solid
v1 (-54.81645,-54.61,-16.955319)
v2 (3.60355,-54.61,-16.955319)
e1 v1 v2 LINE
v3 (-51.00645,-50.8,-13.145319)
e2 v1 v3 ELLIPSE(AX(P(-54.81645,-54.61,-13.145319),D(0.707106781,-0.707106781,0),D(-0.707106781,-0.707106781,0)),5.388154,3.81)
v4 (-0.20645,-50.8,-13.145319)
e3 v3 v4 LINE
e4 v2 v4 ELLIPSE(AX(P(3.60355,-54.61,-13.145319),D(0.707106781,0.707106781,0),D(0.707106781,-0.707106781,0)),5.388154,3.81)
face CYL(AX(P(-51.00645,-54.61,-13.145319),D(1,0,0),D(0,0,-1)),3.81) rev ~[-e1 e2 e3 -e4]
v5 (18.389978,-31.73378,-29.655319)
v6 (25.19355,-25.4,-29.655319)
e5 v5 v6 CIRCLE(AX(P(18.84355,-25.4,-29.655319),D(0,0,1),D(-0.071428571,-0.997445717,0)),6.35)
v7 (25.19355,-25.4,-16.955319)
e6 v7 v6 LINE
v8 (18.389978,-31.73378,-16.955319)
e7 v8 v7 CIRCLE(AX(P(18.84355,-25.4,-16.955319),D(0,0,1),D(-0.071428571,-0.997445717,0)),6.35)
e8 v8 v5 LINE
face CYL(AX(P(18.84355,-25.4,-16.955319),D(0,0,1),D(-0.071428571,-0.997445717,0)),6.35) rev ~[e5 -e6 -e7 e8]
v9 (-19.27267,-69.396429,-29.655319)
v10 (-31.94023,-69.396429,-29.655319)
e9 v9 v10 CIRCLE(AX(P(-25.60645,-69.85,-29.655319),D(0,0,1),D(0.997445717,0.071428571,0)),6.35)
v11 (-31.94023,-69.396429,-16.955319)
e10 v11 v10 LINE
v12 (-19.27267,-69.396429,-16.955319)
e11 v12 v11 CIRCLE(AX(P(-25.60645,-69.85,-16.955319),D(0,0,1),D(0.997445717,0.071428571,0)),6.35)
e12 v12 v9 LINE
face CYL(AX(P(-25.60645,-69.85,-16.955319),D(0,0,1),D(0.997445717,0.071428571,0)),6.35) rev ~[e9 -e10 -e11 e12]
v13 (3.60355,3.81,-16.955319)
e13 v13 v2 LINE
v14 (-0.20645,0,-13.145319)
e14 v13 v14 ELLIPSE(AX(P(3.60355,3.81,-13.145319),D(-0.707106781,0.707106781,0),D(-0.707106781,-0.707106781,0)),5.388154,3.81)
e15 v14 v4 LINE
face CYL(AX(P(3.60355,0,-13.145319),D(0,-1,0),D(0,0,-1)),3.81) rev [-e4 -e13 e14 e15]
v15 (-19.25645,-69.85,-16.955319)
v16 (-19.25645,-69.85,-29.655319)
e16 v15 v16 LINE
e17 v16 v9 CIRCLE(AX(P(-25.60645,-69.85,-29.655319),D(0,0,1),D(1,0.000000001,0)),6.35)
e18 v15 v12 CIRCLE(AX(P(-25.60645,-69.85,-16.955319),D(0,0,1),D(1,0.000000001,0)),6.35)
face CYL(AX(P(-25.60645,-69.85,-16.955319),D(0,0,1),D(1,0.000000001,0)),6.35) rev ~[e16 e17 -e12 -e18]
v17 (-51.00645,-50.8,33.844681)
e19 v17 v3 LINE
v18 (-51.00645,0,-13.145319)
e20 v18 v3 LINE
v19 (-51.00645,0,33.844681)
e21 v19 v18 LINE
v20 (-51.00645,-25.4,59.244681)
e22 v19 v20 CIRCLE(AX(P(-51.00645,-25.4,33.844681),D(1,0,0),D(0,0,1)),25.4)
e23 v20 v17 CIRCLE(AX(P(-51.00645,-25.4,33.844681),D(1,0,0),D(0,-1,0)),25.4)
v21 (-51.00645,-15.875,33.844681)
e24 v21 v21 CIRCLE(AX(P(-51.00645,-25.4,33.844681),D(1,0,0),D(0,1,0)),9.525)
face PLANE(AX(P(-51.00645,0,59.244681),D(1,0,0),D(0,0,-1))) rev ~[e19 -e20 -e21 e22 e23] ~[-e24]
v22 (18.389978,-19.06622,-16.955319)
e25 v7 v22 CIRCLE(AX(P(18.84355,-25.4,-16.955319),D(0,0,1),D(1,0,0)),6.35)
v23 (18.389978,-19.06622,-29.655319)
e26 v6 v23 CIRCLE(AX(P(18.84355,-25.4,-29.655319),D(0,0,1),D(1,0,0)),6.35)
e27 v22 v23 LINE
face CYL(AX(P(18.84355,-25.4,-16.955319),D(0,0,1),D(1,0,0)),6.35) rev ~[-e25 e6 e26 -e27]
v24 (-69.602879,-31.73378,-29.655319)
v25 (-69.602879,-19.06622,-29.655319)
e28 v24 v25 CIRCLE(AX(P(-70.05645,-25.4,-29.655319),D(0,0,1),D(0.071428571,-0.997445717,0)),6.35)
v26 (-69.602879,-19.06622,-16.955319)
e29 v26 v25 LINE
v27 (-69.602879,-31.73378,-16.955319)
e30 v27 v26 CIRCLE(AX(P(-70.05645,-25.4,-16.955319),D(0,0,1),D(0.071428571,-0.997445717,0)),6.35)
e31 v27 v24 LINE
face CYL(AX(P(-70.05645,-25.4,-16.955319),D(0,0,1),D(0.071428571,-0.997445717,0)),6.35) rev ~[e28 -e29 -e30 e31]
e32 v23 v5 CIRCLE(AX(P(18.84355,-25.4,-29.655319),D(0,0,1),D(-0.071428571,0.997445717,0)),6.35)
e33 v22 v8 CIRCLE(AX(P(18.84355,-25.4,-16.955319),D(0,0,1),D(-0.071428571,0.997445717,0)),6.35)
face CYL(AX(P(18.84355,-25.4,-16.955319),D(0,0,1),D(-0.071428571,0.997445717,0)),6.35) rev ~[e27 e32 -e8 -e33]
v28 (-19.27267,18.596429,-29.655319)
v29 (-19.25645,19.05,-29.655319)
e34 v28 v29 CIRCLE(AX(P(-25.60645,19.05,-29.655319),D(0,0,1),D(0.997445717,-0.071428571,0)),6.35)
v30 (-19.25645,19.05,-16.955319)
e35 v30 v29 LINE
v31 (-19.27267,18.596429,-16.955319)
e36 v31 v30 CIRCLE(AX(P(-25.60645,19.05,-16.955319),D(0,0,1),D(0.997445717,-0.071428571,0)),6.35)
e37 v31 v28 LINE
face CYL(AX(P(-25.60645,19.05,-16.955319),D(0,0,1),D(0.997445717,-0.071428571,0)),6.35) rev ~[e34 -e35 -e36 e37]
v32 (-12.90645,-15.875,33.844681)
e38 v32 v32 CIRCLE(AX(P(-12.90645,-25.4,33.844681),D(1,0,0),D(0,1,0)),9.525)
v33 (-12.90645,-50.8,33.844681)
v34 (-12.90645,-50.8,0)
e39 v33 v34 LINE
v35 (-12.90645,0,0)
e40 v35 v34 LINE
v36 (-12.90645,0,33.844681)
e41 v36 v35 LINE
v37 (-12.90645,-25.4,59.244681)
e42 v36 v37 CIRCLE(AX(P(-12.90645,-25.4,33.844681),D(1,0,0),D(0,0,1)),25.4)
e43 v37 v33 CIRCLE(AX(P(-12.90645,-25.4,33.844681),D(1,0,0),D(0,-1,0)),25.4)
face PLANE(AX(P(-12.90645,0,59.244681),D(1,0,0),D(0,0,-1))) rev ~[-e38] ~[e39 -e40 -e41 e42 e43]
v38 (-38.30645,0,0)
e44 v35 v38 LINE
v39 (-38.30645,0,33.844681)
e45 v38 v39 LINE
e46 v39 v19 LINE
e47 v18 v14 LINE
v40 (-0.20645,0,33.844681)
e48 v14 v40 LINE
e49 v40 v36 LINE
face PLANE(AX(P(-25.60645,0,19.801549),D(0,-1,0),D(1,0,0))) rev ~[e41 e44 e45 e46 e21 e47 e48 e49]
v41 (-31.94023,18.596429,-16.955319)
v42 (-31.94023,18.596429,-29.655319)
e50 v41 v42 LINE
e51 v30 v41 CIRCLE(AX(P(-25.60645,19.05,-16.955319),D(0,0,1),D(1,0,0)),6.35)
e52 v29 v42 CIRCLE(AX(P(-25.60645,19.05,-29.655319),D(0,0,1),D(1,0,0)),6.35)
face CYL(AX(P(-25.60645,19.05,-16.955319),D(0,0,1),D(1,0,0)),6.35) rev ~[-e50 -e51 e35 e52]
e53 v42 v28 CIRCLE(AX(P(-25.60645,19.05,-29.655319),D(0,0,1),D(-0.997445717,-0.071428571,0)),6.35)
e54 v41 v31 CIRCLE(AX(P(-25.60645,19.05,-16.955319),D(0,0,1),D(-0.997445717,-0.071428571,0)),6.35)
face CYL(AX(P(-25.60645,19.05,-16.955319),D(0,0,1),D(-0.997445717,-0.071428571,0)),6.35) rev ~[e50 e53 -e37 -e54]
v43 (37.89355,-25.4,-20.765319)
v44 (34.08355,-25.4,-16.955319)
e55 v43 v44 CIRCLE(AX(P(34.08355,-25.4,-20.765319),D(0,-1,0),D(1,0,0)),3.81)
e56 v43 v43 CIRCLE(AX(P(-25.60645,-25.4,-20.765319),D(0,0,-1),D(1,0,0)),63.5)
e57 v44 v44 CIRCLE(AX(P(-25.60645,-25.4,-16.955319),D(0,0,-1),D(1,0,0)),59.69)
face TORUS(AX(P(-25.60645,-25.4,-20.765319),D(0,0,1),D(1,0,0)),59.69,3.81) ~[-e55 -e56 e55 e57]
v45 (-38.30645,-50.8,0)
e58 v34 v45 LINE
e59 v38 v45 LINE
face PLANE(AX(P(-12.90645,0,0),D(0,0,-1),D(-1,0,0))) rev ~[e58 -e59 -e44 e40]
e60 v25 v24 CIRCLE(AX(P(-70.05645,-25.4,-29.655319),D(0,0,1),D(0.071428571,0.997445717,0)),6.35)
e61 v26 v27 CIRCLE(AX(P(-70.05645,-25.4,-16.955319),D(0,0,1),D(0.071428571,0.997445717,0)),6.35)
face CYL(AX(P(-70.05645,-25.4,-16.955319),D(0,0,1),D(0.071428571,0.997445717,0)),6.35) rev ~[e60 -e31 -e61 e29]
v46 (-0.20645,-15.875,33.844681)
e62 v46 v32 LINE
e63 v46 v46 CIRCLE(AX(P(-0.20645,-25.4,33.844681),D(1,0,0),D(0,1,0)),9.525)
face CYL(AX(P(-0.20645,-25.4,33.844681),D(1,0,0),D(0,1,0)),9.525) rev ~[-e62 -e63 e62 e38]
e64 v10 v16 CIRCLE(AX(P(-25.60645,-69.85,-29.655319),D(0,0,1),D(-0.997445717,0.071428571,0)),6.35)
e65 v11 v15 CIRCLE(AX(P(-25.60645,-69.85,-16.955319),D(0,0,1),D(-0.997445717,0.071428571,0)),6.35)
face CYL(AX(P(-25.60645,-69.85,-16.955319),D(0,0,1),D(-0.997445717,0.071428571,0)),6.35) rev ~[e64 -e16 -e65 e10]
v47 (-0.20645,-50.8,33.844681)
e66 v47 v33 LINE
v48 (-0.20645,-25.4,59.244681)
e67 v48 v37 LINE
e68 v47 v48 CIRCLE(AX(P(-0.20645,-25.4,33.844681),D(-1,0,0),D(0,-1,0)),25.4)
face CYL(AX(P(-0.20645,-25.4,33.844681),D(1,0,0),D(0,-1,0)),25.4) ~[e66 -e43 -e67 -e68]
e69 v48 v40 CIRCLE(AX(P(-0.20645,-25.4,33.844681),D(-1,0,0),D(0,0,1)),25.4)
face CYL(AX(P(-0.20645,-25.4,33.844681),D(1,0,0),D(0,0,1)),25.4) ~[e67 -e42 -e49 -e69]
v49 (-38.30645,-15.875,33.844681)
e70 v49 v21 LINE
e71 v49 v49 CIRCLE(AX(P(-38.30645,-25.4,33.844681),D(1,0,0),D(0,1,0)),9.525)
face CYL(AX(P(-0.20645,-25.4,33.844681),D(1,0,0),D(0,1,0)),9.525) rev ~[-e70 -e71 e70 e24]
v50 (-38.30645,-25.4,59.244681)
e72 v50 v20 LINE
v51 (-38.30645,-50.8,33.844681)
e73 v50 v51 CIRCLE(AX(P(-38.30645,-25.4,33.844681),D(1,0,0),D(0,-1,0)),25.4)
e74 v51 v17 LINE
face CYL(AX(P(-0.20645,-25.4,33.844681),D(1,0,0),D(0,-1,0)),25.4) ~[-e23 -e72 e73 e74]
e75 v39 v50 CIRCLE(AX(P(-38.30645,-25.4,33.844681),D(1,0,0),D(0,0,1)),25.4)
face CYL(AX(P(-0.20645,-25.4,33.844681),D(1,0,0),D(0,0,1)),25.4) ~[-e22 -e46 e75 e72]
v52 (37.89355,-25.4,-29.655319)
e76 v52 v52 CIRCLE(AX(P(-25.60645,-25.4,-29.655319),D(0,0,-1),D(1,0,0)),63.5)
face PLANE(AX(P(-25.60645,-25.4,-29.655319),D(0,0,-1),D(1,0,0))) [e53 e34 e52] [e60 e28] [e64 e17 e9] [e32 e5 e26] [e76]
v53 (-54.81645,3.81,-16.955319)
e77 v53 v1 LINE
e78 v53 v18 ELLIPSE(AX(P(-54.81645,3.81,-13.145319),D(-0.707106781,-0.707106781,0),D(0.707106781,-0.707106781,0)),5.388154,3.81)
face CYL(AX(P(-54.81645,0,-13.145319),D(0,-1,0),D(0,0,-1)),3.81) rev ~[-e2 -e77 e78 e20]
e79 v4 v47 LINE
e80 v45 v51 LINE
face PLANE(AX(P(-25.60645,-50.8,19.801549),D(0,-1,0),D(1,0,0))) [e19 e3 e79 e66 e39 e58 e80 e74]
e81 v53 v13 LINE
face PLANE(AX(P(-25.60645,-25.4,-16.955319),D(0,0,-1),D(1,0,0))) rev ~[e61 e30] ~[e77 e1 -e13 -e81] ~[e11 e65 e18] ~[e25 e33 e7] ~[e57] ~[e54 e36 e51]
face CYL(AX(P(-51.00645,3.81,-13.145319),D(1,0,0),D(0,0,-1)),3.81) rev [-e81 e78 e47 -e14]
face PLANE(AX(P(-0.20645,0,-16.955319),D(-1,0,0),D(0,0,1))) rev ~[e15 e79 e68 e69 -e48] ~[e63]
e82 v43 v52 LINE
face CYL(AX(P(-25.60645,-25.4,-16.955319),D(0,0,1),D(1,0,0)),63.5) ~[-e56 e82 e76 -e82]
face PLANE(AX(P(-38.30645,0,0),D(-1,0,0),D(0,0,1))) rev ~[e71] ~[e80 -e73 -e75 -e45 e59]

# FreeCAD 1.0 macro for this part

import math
import FreeCAD as App
import Part
import Sketcher
from FreeCAD import Vector
Q = App.Units.Quantity


def edges_at(feature, points):
    """Names of the edges that pass closest to the given points."""
    edges = feature.Shape.Edges
    near = lambda p: min(range(len(edges)), key=lambda i: edges[i].distToShape(Part.Vertex(*p))[0])
    return sorted({f"Edge{near(p) + 1}" for p in points})


def add_polygon(sketch, points):
    """Adds a closed chain of lines whose ends are joined by coincident constraints."""
    first, n = sketch.GeometryCount, len(points)
    for a, b in zip(points, points[1:] + points[:1]):
        sketch.addGeometry(Part.LineSegment(App.Vector(*a, 0), App.Vector(*b, 0)), False)
    for i in range(n):
        sketch.addConstraint(Sketcher.Constraint("Coincident", first + i, 2, first + (i + 1) % n, 1))

doc = App.newDocument("Part")
body = doc.addObject("PartDesign::Body", "Body")

# Sketch on XZ plane
sketch1 = doc.addObject("Sketcher::SketchObject", "Sketch")
body.addObject(sketch1)
sketch1.AttachmentSupport = (doc.XZ_Plane, [""])
sketch1.MapMode = "FlatFace"
add_polygon(sketch1, [(-38, 0), (-38, 59), (-51, 59), (-51, -17), (0, -17), (0, 59), (-13, 59), (-13, 0)])  # lines 0-7
sketch1.addConstraint(Sketcher.Constraint("Vertical", 0))
sketch1.addConstraint(Sketcher.Constraint("Horizontal", 1))
sketch1.addConstraint(Sketcher.Constraint("Vertical", 2))
sketch1.addConstraint(Sketcher.Constraint("Horizontal", 3))
sketch1.addConstraint(Sketcher.Constraint("Vertical", 4))
sketch1.addConstraint(Sketcher.Constraint("Horizontal", 5))
sketch1.addConstraint(Sketcher.Constraint("Vertical", 6))
sketch1.addConstraint(Sketcher.Constraint("Horizontal", 7))
sketch1.addConstraint(Sketcher.Constraint("PointOnObject", 6, 2, -1))
sketch1.addConstraint(Sketcher.Constraint("Horizontal", 1, 2, 4, 2))
sketch1.addConstraint(Sketcher.Constraint("Equal", 1, 5))
sketch1.addConstraint(Sketcher.Constraint("DistanceX", 3, 1, 3, 2, Q("2 in")))
sketch1.addConstraint(Sketcher.Constraint("DistanceX", 7, 2, 7, 1, Q("1 in")))
sketch1.addConstraint(Sketcher.Constraint("DistanceY", 2, 2, 2, 1, Q("3 in")))
sketch1.addConstraint(Sketcher.Constraint("DistanceY", 0, 1, 0, 2, Q("59.244681 mm")))
sketch1.addConstraint(Sketcher.Constraint("DistanceX", 0, 2, -1, 1, Q("38.30645 mm")))
pad1 = doc.addObject("PartDesign::Pad", "Pad")
body.addObject(pad1)
pad1.Profile = sketch1
pad1.Length = Q("2 in")

# Sketch on YZ plane
sketch2 = doc.addObject("Sketcher::SketchObject", "Sketch001")
body.addObject(sketch2)
sketch2.AttachmentSupport = (doc.YZ_Plane, [""])
sketch2.MapMode = "FlatFace"
sketch2.AttachmentOffset = App.Placement(Vector(0, 0, -0.20645), App.Rotation())
sketch2.addGeometry(Part.ArcOfCircle(Part.Circle(Vector(-25, 34, 0), Vector(0, 0, 1), 25), math.radians(90), math.radians(180)), False)
sketch2.addGeometry(Part.LineSegment(Vector(-25, 59, 0), Vector(-51, 59, 0)), False)
sketch2.addGeometry(Part.LineSegment(Vector(-51, 59, 0), Vector(-51, 34, 0)), False)
sketch2.addGeometry(Part.ArcOfCircle(Part.Circle(Vector(-25, 34, 0), Vector(0, 0, 1), 25), math.radians(0), math.radians(90)), False)
sketch2.addGeometry(Part.LineSegment(Vector(0, 34, 0), Vector(0, 59, 0)), False)
sketch2.addGeometry(Part.LineSegment(Vector(0, 59, 0), Vector(-25, 59, 0)), False)
sketch2.addConstraint(Sketcher.Constraint("Tangent", 0, 1, 1, 1))
sketch2.addConstraint(Sketcher.Constraint("Coincident", 1, 2, 2, 1))
sketch2.addConstraint(Sketcher.Constraint("Tangent", 2, 2, 0, 2))
sketch2.addConstraint(Sketcher.Constraint("Tangent", 3, 1, 4, 1))
sketch2.addConstraint(Sketcher.Constraint("Coincident", 4, 2, 5, 1))
sketch2.addConstraint(Sketcher.Constraint("Tangent", 5, 2, 3, 2))
sketch2.addConstraint(Sketcher.Constraint("Horizontal", 1))
sketch2.addConstraint(Sketcher.Constraint("Vertical", 2))
sketch2.addConstraint(Sketcher.Constraint("Vertical", 4))
sketch2.addConstraint(Sketcher.Constraint("Horizontal", 5))
sketch2.addConstraint(Sketcher.Constraint("Coincident", 3, 3, 0, 3))
sketch2.addConstraint(Sketcher.Constraint("Equal", 0, 3))
sketch2.addConstraint(Sketcher.Constraint("PointOnObject", 3, 1, -2))
sketch2.addConstraint(Sketcher.Constraint("Radius", 0, Q("1 in")))
sketch2.addConstraint(Sketcher.Constraint("DistanceY", -1, 1, 0, 3, Q("33.844681 mm")))
pocket1 = doc.addObject("PartDesign::Pocket", "Pocket")
body.addObject(pocket1)
pocket1.Profile = sketch2
pocket1.Type = "ThroughAll"

# Sketch on YZ plane
sketch3 = doc.addObject("Sketcher::SketchObject", "Sketch002")
body.addObject(sketch3)
sketch3.AttachmentSupport = (doc.YZ_Plane, [""])
sketch3.MapMode = "FlatFace"
sketch3.AttachmentOffset = App.Placement(Vector(0, 0, -0.20645), App.Rotation())
sketch3.addGeometry(Part.Circle(Vector(-25, 34, 0), Vector(0, 0, 1), 10), False)
sketch3.addConstraint(Sketcher.Constraint("Diameter", 0, Q("0.75 in")))
sketch3.addConstraint(Sketcher.Constraint("DistanceX", 0, 3, -1, 1, Q("1 in")))
sketch3.addConstraint(Sketcher.Constraint("DistanceY", -1, 1, 0, 3, Q("33.844681 mm")))
pocket2 = doc.addObject("PartDesign::Pocket", "Pocket001")
body.addObject(pocket2)
pocket2.Profile = sketch3
pocket2.Type = "ThroughAll"

# Sketch on XY plane
sketch4 = doc.addObject("Sketcher::SketchObject", "Sketch003")
body.addObject(sketch4)
sketch4.AttachmentSupport = (doc.XY_Plane, [""])
sketch4.MapMode = "FlatFace"
sketch4.AttachmentOffset = App.Placement(Vector(0, 0, -16.955319), App.Rotation())
sketch4.addGeometry(Part.Circle(Vector(-25.61, -25.4, 0), Vector(0, 0, 1), 63.5), False)
sketch4.addGeometry(Part.ArcOfCircle(Part.Circle(Vector(-25.61, 19.05, 0), Vector(0, 0, 1), 6.35), math.radians(0), math.radians(184)), False)
sketch4.addGeometry(Part.ArcOfCircle(Part.Circle(Vector(-25.61, 19.05, 0), Vector(0, 0, 1), 6.35), math.radians(-176), math.radians(-4)), False)
sketch4.addGeometry(Part.ArcOfCircle(Part.Circle(Vector(-25.61, 19.05, 0), Vector(0, 0, 1), 6.35), math.radians(-4.1), math.radians(0)), False)
sketch4.addGeometry(Part.ArcOfCircle(Part.Circle(Vector(-70.06, -25.4, 0), Vector(0, 0, 1), 6.35), math.radians(86), math.radians(274)), False)
sketch4.addGeometry(Part.ArcOfCircle(Part.Circle(Vector(-70.06, -25.4, 0), Vector(0, 0, 1), 6.35), math.radians(-86), math.radians(86)), False)
sketch4.addGeometry(Part.ArcOfCircle(Part.Circle(Vector(-25.61, -69.85, 0), Vector(0, 0, 1), 6.35), math.radians(0), math.radians(4.1)), False)
sketch4.addGeometry(Part.ArcOfCircle(Part.Circle(Vector(-25.61, -69.85, 0), Vector(0, 0, 1), 6.35), math.radians(4), math.radians(176)), False)
sketch4.addGeometry(Part.ArcOfCircle(Part.Circle(Vector(-25.61, -69.85, 0), Vector(0, 0, 1), 6.35), math.radians(176), math.radians(360)), False)
sketch4.addGeometry(Part.ArcOfCircle(Part.Circle(Vector(18.84, -25.4, 0), Vector(0, 0, 1), 6.35), math.radians(0), math.radians(94)), False)
sketch4.addGeometry(Part.ArcOfCircle(Part.Circle(Vector(18.84, -25.4, 0), Vector(0, 0, 1), 6.35), math.radians(94), math.radians(266)), False)
sketch4.addGeometry(Part.ArcOfCircle(Part.Circle(Vector(18.84, -25.4, 0), Vector(0, 0, 1), 6.35), math.radians(-94), math.radians(0)), False)
sketch4.addConstraint(Sketcher.Constraint("Tangent", 1, 2, 2, 1))
sketch4.addConstraint(Sketcher.Constraint("Tangent", 2, 2, 3, 1))
sketch4.addConstraint(Sketcher.Constraint("Tangent", 3, 2, 1, 1))
sketch4.addConstraint(Sketcher.Constraint("Tangent", 4, 1, 5, 2))
sketch4.addConstraint(Sketcher.Constraint("Coincident", 5, 1, 4, 2))
sketch4.addConstraint(Sketcher.Constraint("Tangent", 6, 2, 7, 1))
sketch4.addConstraint(Sketcher.Constraint("Tangent", 7, 2, 8, 1))
sketch4.addConstraint(Sketcher.Constraint("Tangent", 8, 2, 6, 1))
sketch4.addConstraint(Sketcher.Constraint("Tangent", 9, 2, 10, 1))
sketch4.addConstraint(Sketcher.Constraint("Tangent", 10, 2, 11, 1))
sketch4.addConstraint(Sketcher.Constraint("Tangent", 11, 2, 9, 1))
sketch4.addConstraint(Sketcher.Constraint("Equal", 3, 4))
sketch4.addConstraint(Sketcher.Constraint("Equal", 5, 6))
sketch4.addConstraint(Sketcher.Constraint("Equal", 8, 9))
sketch4.addConstraint(Sketcher.Constraint("Horizontal", 0, 3, 4, 3))
sketch4.addConstraint(Sketcher.Constraint("Horizontal", 5, 3, 9, 3))
sketch4.addConstraint(Sketcher.Constraint("Horizontal", 1, 2, 2, 2))
sketch4.addConstraint(Sketcher.Constraint("Horizontal", 2, 3, 3, 2))
sketch4.addConstraint(Sketcher.Constraint("Horizontal", 6, 2, 7, 2))
sketch4.addConstraint(Sketcher.Constraint("Horizontal", 7, 3, 8, 2))
sketch4.addConstraint(Sketcher.Constraint("Horizontal", 4, 1, 9, 2))
sketch4.addConstraint(Sketcher.Constraint("Horizontal", 5, 1, 10, 2))
sketch4.addConstraint(Sketcher.Constraint("Horizontal", 10, 3, 11, 2))
sketch4.addConstraint(Sketcher.Constraint("Vertical", 0, 3, 1, 3))
sketch4.addConstraint(Sketcher.Constraint("Vertical", 3, 3, 6, 3))
sketch4.addConstraint(Sketcher.Constraint("Vertical", 4, 1, 5, 1))
sketch4.addConstraint(Sketcher.Constraint("Vertical", 2, 2, 6, 2))
sketch4.addConstraint(Sketcher.Constraint("Diameter", 0, Q("5 in")))
sketch4.addConstraint(Sketcher.Constraint("Radius", 1, Q("0.25 in")))
sketch4.addConstraint(Sketcher.Constraint("DistanceY", 0, 3, -1, 1, Q("1 in")))
sketch4.addConstraint(Sketcher.Constraint("DistanceY", 6, 3, 1, 3, Q("3.5 in")))
sketch4.addConstraint(Sketcher.Constraint("DistanceY", -1, 1, 1, 3, Q("0.75 in")))
sketch4.addConstraint(Sketcher.Constraint("DistanceX", 4, 3, 0, 3, Q("1.75 in")))
sketch4.addConstraint(Sketcher.Constraint("DistanceX", 0, 3, 9, 3, Q("1.75 in")))
sketch4.addConstraint(Sketcher.Constraint("DistanceX", 0, 3, -1, 1, Q("25.60645 mm")))
sketch4.addConstraint(Sketcher.Constraint("DistanceX", 1, 2, -1, 1, Q("31.94023 mm")))
sketch4.addConstraint(Sketcher.Constraint("DistanceX", 4, 1, -1, 1, Q("69.602879 mm")))
pad2 = doc.addObject("PartDesign::Pad", "Pad001")
body.addObject(pad2)
pad2.Profile = sketch4
pad2.Length = Q("0.5 in")
pad2.Reversed = True
doc.recompute()

fillet = doc.addObject("PartDesign::Fillet", "Fillet")
body.addObject(fillet)
fillet.Base = (pad2, edges_at(pad2, [
    (-51.006, -25.4, -16.955),
    (-25.606, -50.8, -16.955),
    (-0.206, -25.4, -16.955),
    (-25.606, 0, -16.955),
    (-89.106, -25.4, -16.955),
]))
fillet.Radius = Q("0.15 in")

doc.recompute()
